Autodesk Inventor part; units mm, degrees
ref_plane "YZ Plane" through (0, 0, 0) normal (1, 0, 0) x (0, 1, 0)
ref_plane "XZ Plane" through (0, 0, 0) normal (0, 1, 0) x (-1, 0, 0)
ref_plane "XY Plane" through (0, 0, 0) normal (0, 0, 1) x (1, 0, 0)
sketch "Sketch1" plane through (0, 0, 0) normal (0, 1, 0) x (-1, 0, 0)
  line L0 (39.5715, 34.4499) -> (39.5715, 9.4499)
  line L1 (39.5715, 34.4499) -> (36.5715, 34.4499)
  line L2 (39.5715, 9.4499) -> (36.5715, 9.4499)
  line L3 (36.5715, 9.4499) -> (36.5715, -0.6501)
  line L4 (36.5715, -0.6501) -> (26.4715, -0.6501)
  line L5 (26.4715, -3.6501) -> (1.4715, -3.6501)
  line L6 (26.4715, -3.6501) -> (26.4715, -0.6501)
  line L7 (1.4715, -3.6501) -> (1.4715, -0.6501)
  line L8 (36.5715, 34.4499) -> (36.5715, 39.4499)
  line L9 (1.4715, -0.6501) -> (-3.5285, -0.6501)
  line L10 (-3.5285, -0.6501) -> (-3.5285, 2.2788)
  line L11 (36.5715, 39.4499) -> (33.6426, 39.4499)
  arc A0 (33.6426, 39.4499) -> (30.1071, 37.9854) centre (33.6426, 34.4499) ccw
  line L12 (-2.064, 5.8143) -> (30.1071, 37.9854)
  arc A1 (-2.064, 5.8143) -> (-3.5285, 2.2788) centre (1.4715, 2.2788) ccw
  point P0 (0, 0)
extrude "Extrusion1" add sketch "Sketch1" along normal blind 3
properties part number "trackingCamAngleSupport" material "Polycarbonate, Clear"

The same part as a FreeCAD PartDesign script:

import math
import FreeCAD as App
import Part
import Sketcher

doc = App.newDocument("Part")
body = doc.addObject("PartDesign::Body", "Body")

# Sketch on XZ plane
sketch1 = body.newObject("Sketcher::SketchObject", "Sketch")
sketch1.AttachmentSupport = (doc.getObject("XZ_Plane"), [""])
sketch1.MapMode = "FlatFace"
sketch1.addGeometry(Part.LineSegment(App.Vector(-39.6, 9.4, 0), App.Vector(-39.6, 34.4, 0)), False)
sketch1.addGeometry(Part.LineSegment(App.Vector(-39.6, 34.4, 0), App.Vector(-36.6, 34.4, 0)), False)
sketch1.addGeometry(Part.LineSegment(App.Vector(-36.6, 34.4, 0), App.Vector(-36.6, 39.4, 0)), False)
sketch1.addGeometry(Part.LineSegment(App.Vector(-36.6, 39.4, 0), App.Vector(-33.6, 39.4, 0)), False)
sketch1.addGeometry(Part.ArcOfCircle(Part.Circle(App.Vector(-33.6, 34.4, 0), App.Vector(0, 0, 1), 5), math.radians(45), math.radians(90)), False)
sketch1.addGeometry(Part.LineSegment(App.Vector(-30.1, 38, 0), App.Vector(2.1, 5.8, 0)), False)
sketch1.addGeometry(Part.ArcOfCircle(Part.Circle(App.Vector(-1.5, 2.3, 0), App.Vector(0, 0, 1), 5), math.radians(0), math.radians(45)), False)
sketch1.addGeometry(Part.LineSegment(App.Vector(3.5, 2.3, 0), App.Vector(3.5, -0.7, 0)), False)
sketch1.addGeometry(Part.LineSegment(App.Vector(3.5, -0.7, 0), App.Vector(-1.5, -0.7, 0)), False)
sketch1.addGeometry(Part.LineSegment(App.Vector(-1.5, -0.7, 0), App.Vector(-1.5, -3.7, 0)), False)
sketch1.addGeometry(Part.LineSegment(App.Vector(-1.5, -3.7, 0), App.Vector(-26.5, -3.7, 0)), False)
sketch1.addGeometry(Part.LineSegment(App.Vector(-26.5, -3.7, 0), App.Vector(-26.5, -0.7, 0)), False)
sketch1.addGeometry(Part.LineSegment(App.Vector(-26.5, -0.7, 0), App.Vector(-36.6, -0.7, 0)), False)
sketch1.addGeometry(Part.LineSegment(App.Vector(-36.6, -0.7, 0), App.Vector(-36.6, 9.4, 0)), False)
sketch1.addGeometry(Part.LineSegment(App.Vector(-36.6, 9.4, 0), App.Vector(-39.6, 9.4, 0)), False)
sketch1.addConstraint(Sketcher.Constraint("Coincident", 0, 2, 1, 1))
sketch1.addConstraint(Sketcher.Constraint("Coincident", 1, 2, 2, 1))
sketch1.addConstraint(Sketcher.Constraint("Coincident", 2, 2, 3, 1))
sketch1.addConstraint(Sketcher.Constraint("Tangent", 3, 2, 4, 2))
sketch1.addConstraint(Sketcher.Constraint("Tangent", 4, 1, 5, 1))
sketch1.addConstraint(Sketcher.Constraint("Tangent", 5, 2, 6, 2))
sketch1.addConstraint(Sketcher.Constraint("Tangent", 6, 1, 7, 1))
sketch1.addConstraint(Sketcher.Constraint("Coincident", 7, 2, 8, 1))
sketch1.addConstraint(Sketcher.Constraint("Coincident", 8, 2, 9, 1))
sketch1.addConstraint(Sketcher.Constraint("Coincident", 9, 2, 10, 1))
sketch1.addConstraint(Sketcher.Constraint("Coincident", 10, 2, 11, 1))
sketch1.addConstraint(Sketcher.Constraint("Coincident", 11, 2, 12, 1))
sketch1.addConstraint(Sketcher.Constraint("Coincident", 12, 2, 13, 1))
sketch1.addConstraint(Sketcher.Constraint("Coincident", 13, 2, 14, 1))
sketch1.addConstraint(Sketcher.Constraint("Coincident", 14, 2, 0, 1))
sketch1.addConstraint(Sketcher.Constraint("Vertical", 0))
sketch1.addConstraint(Sketcher.Constraint("Horizontal", 1))
sketch1.addConstraint(Sketcher.Constraint("Vertical", 2))
sketch1.addConstraint(Sketcher.Constraint("Horizontal", 3))
sketch1.addConstraint(Sketcher.Constraint("Vertical", 7))
sketch1.addConstraint(Sketcher.Constraint("Horizontal", 8))
sketch1.addConstraint(Sketcher.Constraint("Vertical", 9))
sketch1.addConstraint(Sketcher.Constraint("Horizontal", 10))
sketch1.addConstraint(Sketcher.Constraint("Vertical", 11))
sketch1.addConstraint(Sketcher.Constraint("Horizontal", 12))
sketch1.addConstraint(Sketcher.Constraint("Vertical", 13))
sketch1.addConstraint(Sketcher.Constraint("Horizontal", 14))
sketch1.addConstraint(Sketcher.Constraint("Equal", 4, 6))
sketch1.addConstraint(Sketcher.Constraint("Horizontal", 4, 3, 0, 2))
sketch1.addConstraint(Sketcher.Constraint("Horizontal", 8, 2, 11, 2))
sketch1.addConstraint(Sketcher.Constraint("Vertical", 6, 3, 8, 2))
sketch1.addConstraint(Sketcher.Constraint("Vertical", 2, 2, 12, 2))
sketch1.addConstraint(Sketcher.Constraint("Equal", 10, 0))
sketch1.addConstraint(Sketcher.Constraint("Equal", 3, 7))
sketch1.addConstraint(Sketcher.Constraint("Equal", 14, 9))
sketch1.addConstraint(Sketcher.Constraint("Equal", 12, 13))
sketch1.addConstraint(Sketcher.Constraint("Radius", 4, 5.0))
sketch1.addConstraint(Sketcher.Constraint("DistanceX", 1, 1, 1, 2, 3.0))
sketch1.addConstraint(Sketcher.Constraint("DistanceX", 10, 2, 10, 1, 25.0))
sketch1.addConstraint(Sketcher.Constraint("DistanceX", 12, 2, 12, 1, 10.1))
sketch1.addConstraint(Sketcher.Constraint("DistanceX", 3, 1, 3, 2, 2.929))
sketch1.addConstraint(Sketcher.Constraint("DistanceY", -1, 1, 4, 3, 34.45))
sketch1.addConstraint(Sketcher.Constraint("DistanceX", 4, 1, -1, 1, 30.107))
pad1 = body.newObject("PartDesign::Pad", "Pad")
pad1.Profile = sketch1
pad1.Length = 3
pad1.Reversed = True

doc.recompute()
